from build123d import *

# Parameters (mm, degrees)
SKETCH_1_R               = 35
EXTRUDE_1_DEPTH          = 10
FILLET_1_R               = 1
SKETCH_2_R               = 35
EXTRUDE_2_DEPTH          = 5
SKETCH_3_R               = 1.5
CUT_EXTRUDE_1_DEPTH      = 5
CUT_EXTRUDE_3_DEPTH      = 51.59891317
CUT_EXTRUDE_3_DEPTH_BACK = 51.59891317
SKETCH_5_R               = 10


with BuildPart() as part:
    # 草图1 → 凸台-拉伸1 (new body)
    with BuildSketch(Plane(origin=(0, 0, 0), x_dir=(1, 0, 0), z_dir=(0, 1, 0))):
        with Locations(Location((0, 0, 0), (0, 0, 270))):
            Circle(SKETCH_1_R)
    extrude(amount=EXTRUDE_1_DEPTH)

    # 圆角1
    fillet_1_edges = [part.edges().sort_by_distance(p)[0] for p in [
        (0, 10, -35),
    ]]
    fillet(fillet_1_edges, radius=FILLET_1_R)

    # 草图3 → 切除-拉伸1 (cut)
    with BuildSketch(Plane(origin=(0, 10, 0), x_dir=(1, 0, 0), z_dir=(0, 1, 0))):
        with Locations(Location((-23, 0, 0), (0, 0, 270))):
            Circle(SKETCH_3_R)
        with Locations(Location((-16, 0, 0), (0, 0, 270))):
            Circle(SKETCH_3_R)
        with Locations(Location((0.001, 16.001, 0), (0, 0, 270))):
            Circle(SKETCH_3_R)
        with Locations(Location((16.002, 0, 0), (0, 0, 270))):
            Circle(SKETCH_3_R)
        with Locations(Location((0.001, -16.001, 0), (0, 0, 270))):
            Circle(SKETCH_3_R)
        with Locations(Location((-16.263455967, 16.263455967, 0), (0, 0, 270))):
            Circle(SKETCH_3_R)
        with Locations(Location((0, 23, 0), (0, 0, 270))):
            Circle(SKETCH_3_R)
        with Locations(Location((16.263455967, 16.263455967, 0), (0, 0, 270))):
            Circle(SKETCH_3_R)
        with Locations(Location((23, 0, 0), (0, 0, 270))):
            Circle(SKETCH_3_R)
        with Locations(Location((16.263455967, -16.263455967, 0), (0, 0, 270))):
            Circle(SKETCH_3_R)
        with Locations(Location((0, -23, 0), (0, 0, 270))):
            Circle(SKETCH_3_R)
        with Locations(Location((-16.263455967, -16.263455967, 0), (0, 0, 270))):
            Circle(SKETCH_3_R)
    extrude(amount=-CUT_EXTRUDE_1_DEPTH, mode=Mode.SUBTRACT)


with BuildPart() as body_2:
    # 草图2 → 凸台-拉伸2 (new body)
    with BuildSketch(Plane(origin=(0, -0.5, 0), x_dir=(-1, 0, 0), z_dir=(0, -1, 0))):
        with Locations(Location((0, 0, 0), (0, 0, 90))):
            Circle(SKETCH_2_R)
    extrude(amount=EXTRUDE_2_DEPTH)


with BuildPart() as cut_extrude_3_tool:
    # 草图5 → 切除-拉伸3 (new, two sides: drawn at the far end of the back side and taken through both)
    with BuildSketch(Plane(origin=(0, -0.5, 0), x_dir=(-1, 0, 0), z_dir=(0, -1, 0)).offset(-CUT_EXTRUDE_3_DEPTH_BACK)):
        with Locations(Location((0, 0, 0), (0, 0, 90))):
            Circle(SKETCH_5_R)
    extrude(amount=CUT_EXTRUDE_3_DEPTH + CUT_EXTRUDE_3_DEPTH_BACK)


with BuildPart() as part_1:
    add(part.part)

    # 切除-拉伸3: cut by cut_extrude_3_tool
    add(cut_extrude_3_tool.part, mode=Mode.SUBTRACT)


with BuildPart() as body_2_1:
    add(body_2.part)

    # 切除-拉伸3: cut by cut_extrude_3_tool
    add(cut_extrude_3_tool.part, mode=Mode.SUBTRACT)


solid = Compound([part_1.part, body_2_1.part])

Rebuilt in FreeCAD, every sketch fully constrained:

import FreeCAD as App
import Part
import Sketcher
from FreeCAD import Vector


def edges_at(feature, points):
    """Names of the edges that pass closest to the given points."""
    edges = feature.Shape.Edges
    near = lambda p: min(range(len(edges)), key=lambda i: edges[i].distToShape(Part.Vertex(*p))[0])
    return sorted({f"Edge{near(p) + 1}" for p in points})

doc = App.newDocument("Part")
body = doc.addObject("PartDesign::Body", "Body")

# Sketch on XZ plane
sketch1 = body.newObject("Sketcher::SketchObject", "Sketch")
sketch1.AttachmentSupport = (doc.getObject("XZ_Plane"), [""])
sketch1.MapMode = "FlatFace"
sketch1.addGeometry(Part.Circle(Vector(0, 0, 0), Vector(0, 0, 1), 35), False)
sketch1.addConstraint([
    Sketcher.Constraint("Coincident", 0, 3, -1, 1),
    Sketcher.Constraint("Diameter", 0, 70.0),
])
pad1 = body.newObject("PartDesign::Pad", "Pad")
pad1.Profile = sketch1
pad1.Length = 10
pad1.Reversed = True
doc.recompute()

fillet = body.newObject("PartDesign::Fillet", "Fillet")
fillet.Base = (pad1, edges_at(pad1, [(0, 10, -35)]))
fillet.Radius = 1

# Sketch on XZ plane
sketch2 = body.newObject("Sketcher::SketchObject", "Sketch001")
sketch2.AttachmentSupport = (doc.getObject("XZ_Plane"), [""])
sketch2.MapMode = "FlatFace"
sketch2.AttachmentOffset = App.Placement(Vector(0, 0, -10), App.Rotation())
sketch2.addGeometry([
    Part.Circle(Vector(-23, 0, 0), Vector(0, 0, 1), 1.5),  # 0
    Part.Circle(Vector(-16, 0, 0), Vector(0, 0, 1), 1.5),  # 1
    Part.Circle(Vector(0.001, -16.001, 0), Vector(0, 0, 1), 1.5),  # 2
    Part.Circle(Vector(16.002, 0, 0), Vector(0, 0, 1), 1.5),  # 3
    Part.Circle(Vector(0.001, 16.001, 0), Vector(0, 0, 1), 1.5),  # 4
    Part.Circle(Vector(-16.263456, -16.263456, 0), Vector(0, 0, 1), 1.5),  # 5
    Part.Circle(Vector(0, -23, 0), Vector(0, 0, 1), 1.5),  # 6
    Part.Circle(Vector(16.263456, -16.263456, 0), Vector(0, 0, 1), 1.5),  # 7
    Part.Circle(Vector(23, 0, 0), Vector(0, 0, 1), 1.5),  # 8
    Part.Circle(Vector(16.263456, 16.263456, 0), Vector(0, 0, 1), 1.5),  # 9
    Part.Circle(Vector(0, 23, 0), Vector(0, 0, 1), 1.5),  # 10
    Part.Circle(Vector(-16.263456, 16.263456, 0), Vector(0, 0, 1), 1.5),  # 11
], False)
sketch2.addConstraint([
    Sketcher.Constraint("Equal", 0, 1),
    Sketcher.Constraint("Equal", 1, 2),
    Sketcher.Constraint("Equal", 2, 3),
    Sketcher.Constraint("Equal", 3, 4),
    Sketcher.Constraint("Equal", 4, 5),
    Sketcher.Constraint("Equal", 5, 6),
    Sketcher.Constraint("Equal", 6, 7),
    Sketcher.Constraint("Equal", 7, 8),
    Sketcher.Constraint("Equal", 8, 9),
    Sketcher.Constraint("Equal", 9, 10),
    Sketcher.Constraint("Equal", 10, 11),
    Sketcher.Constraint("Symmetric", 0, 3, 8, 3, -1, 1),
    Sketcher.Constraint("Symmetric", 5, 3, 9, 3, -1, 1),
    Sketcher.Constraint("Symmetric", 6, 3, 10, 3, -1, 1),
    Sketcher.Constraint("Symmetric", 7, 3, 11, 3, -1, 1),
    Sketcher.Constraint("Symmetric", 5, 3, 7, 3, -2),
    Sketcher.Constraint("Symmetric", 2, 3, 4, 3, -1),
    Sketcher.Constraint("PointOnObject", 0, 3, -1),
    Sketcher.Constraint("PointOnObject", 1, 3, -1),
    Sketcher.Constraint("PointOnObject", 3, 3, -1),
    Sketcher.Constraint("PointOnObject", 6, 3, -2),
    Sketcher.Constraint("Diameter", 0, 3.0),
    Sketcher.Constraint("DistanceX", 0, 3, -1, 1, 23.0),
    Sketcher.Constraint("DistanceX", 1, 3, -1, 1, 16.0),
    Sketcher.Constraint("DistanceY", 6, 3, -1, 1, 23.0),
    Sketcher.Constraint("DistanceX", -1, 1, 2, 3, 0.001),
    Sketcher.Constraint("DistanceY", 2, 3, -1, 1, 16.001),
    Sketcher.Constraint("DistanceX", -1, 1, 3, 3, 16.002),
    Sketcher.Constraint("DistanceX", 5, 3, 7, 3, 32.526912),
    Sketcher.Constraint("DistanceY", 7, 3, 9, 3, 32.526912),
])
pocket1 = body.newObject("PartDesign::Pocket", "Pocket")
pocket1.Profile = sketch2
pocket1.Length = 5
pocket1.Reversed = True
body2 = doc.addObject("PartDesign::Body", "Body001")

# Sketch on XZ plane
sketch3 = body2.newObject("Sketcher::SketchObject", "Sketch002")
sketch3.AttachmentSupport = (doc.getObject("XZ_Plane001"), [""])
sketch3.MapMode = "FlatFace"
sketch3.AttachmentOffset = App.Placement(Vector(0, 0, 0.5), App.Rotation())
sketch3.addGeometry(Part.Circle(Vector(0, 0, 0), Vector(0, 0, 1), 35), False)
sketch3.addConstraint([
    Sketcher.Constraint("Coincident", 0, 3, -1, 1),
    Sketcher.Constraint("Diameter", 0, 70.0),
])
pad2 = body2.newObject("PartDesign::Pad", "Pad001")
pad2.Profile = sketch3
pad2.Length = 5
body3 = doc.addObject("PartDesign::Body", "Body002")

# Sketch on XZ plane
sketch4 = body3.newObject("Sketcher::SketchObject", "Sketch003")
sketch4.AttachmentSupport = (doc.getObject("XZ_Plane002"), [""])
sketch4.MapMode = "FlatFace"
sketch4.AttachmentOffset = App.Placement(Vector(0, 0, 0.5), App.Rotation())
sketch4.addGeometry(Part.Circle(Vector(0, 0, 0), Vector(0, 0, 1), 10), False)
sketch4.addConstraint([
    Sketcher.Constraint("Coincident", 0, 3, -1, 1),
    Sketcher.Constraint("Diameter", 0, 20.0),
])
pad3 = body3.newObject("PartDesign::Pad", "Pad002")
pad3.Profile = sketch4
pad3.Type = "TwoLengths"
pad3.Length = 51.598913
pad3.Length2 = 51.598913
doc.recompute()

body4 = doc.addObject("PartDesign::Body", "Body003")
body4.BaseFeature = body3
boolean = body.newObject("PartDesign::Boolean", "Boolean")
boolean.Type = "Cut"
boolean.addObjects([body4])
doc.recompute()

boolean2 = body2.newObject("PartDesign::Boolean", "Boolean001")
boolean2.Type = "Cut"
boolean2.addObjects([body3])

doc.recompute()
